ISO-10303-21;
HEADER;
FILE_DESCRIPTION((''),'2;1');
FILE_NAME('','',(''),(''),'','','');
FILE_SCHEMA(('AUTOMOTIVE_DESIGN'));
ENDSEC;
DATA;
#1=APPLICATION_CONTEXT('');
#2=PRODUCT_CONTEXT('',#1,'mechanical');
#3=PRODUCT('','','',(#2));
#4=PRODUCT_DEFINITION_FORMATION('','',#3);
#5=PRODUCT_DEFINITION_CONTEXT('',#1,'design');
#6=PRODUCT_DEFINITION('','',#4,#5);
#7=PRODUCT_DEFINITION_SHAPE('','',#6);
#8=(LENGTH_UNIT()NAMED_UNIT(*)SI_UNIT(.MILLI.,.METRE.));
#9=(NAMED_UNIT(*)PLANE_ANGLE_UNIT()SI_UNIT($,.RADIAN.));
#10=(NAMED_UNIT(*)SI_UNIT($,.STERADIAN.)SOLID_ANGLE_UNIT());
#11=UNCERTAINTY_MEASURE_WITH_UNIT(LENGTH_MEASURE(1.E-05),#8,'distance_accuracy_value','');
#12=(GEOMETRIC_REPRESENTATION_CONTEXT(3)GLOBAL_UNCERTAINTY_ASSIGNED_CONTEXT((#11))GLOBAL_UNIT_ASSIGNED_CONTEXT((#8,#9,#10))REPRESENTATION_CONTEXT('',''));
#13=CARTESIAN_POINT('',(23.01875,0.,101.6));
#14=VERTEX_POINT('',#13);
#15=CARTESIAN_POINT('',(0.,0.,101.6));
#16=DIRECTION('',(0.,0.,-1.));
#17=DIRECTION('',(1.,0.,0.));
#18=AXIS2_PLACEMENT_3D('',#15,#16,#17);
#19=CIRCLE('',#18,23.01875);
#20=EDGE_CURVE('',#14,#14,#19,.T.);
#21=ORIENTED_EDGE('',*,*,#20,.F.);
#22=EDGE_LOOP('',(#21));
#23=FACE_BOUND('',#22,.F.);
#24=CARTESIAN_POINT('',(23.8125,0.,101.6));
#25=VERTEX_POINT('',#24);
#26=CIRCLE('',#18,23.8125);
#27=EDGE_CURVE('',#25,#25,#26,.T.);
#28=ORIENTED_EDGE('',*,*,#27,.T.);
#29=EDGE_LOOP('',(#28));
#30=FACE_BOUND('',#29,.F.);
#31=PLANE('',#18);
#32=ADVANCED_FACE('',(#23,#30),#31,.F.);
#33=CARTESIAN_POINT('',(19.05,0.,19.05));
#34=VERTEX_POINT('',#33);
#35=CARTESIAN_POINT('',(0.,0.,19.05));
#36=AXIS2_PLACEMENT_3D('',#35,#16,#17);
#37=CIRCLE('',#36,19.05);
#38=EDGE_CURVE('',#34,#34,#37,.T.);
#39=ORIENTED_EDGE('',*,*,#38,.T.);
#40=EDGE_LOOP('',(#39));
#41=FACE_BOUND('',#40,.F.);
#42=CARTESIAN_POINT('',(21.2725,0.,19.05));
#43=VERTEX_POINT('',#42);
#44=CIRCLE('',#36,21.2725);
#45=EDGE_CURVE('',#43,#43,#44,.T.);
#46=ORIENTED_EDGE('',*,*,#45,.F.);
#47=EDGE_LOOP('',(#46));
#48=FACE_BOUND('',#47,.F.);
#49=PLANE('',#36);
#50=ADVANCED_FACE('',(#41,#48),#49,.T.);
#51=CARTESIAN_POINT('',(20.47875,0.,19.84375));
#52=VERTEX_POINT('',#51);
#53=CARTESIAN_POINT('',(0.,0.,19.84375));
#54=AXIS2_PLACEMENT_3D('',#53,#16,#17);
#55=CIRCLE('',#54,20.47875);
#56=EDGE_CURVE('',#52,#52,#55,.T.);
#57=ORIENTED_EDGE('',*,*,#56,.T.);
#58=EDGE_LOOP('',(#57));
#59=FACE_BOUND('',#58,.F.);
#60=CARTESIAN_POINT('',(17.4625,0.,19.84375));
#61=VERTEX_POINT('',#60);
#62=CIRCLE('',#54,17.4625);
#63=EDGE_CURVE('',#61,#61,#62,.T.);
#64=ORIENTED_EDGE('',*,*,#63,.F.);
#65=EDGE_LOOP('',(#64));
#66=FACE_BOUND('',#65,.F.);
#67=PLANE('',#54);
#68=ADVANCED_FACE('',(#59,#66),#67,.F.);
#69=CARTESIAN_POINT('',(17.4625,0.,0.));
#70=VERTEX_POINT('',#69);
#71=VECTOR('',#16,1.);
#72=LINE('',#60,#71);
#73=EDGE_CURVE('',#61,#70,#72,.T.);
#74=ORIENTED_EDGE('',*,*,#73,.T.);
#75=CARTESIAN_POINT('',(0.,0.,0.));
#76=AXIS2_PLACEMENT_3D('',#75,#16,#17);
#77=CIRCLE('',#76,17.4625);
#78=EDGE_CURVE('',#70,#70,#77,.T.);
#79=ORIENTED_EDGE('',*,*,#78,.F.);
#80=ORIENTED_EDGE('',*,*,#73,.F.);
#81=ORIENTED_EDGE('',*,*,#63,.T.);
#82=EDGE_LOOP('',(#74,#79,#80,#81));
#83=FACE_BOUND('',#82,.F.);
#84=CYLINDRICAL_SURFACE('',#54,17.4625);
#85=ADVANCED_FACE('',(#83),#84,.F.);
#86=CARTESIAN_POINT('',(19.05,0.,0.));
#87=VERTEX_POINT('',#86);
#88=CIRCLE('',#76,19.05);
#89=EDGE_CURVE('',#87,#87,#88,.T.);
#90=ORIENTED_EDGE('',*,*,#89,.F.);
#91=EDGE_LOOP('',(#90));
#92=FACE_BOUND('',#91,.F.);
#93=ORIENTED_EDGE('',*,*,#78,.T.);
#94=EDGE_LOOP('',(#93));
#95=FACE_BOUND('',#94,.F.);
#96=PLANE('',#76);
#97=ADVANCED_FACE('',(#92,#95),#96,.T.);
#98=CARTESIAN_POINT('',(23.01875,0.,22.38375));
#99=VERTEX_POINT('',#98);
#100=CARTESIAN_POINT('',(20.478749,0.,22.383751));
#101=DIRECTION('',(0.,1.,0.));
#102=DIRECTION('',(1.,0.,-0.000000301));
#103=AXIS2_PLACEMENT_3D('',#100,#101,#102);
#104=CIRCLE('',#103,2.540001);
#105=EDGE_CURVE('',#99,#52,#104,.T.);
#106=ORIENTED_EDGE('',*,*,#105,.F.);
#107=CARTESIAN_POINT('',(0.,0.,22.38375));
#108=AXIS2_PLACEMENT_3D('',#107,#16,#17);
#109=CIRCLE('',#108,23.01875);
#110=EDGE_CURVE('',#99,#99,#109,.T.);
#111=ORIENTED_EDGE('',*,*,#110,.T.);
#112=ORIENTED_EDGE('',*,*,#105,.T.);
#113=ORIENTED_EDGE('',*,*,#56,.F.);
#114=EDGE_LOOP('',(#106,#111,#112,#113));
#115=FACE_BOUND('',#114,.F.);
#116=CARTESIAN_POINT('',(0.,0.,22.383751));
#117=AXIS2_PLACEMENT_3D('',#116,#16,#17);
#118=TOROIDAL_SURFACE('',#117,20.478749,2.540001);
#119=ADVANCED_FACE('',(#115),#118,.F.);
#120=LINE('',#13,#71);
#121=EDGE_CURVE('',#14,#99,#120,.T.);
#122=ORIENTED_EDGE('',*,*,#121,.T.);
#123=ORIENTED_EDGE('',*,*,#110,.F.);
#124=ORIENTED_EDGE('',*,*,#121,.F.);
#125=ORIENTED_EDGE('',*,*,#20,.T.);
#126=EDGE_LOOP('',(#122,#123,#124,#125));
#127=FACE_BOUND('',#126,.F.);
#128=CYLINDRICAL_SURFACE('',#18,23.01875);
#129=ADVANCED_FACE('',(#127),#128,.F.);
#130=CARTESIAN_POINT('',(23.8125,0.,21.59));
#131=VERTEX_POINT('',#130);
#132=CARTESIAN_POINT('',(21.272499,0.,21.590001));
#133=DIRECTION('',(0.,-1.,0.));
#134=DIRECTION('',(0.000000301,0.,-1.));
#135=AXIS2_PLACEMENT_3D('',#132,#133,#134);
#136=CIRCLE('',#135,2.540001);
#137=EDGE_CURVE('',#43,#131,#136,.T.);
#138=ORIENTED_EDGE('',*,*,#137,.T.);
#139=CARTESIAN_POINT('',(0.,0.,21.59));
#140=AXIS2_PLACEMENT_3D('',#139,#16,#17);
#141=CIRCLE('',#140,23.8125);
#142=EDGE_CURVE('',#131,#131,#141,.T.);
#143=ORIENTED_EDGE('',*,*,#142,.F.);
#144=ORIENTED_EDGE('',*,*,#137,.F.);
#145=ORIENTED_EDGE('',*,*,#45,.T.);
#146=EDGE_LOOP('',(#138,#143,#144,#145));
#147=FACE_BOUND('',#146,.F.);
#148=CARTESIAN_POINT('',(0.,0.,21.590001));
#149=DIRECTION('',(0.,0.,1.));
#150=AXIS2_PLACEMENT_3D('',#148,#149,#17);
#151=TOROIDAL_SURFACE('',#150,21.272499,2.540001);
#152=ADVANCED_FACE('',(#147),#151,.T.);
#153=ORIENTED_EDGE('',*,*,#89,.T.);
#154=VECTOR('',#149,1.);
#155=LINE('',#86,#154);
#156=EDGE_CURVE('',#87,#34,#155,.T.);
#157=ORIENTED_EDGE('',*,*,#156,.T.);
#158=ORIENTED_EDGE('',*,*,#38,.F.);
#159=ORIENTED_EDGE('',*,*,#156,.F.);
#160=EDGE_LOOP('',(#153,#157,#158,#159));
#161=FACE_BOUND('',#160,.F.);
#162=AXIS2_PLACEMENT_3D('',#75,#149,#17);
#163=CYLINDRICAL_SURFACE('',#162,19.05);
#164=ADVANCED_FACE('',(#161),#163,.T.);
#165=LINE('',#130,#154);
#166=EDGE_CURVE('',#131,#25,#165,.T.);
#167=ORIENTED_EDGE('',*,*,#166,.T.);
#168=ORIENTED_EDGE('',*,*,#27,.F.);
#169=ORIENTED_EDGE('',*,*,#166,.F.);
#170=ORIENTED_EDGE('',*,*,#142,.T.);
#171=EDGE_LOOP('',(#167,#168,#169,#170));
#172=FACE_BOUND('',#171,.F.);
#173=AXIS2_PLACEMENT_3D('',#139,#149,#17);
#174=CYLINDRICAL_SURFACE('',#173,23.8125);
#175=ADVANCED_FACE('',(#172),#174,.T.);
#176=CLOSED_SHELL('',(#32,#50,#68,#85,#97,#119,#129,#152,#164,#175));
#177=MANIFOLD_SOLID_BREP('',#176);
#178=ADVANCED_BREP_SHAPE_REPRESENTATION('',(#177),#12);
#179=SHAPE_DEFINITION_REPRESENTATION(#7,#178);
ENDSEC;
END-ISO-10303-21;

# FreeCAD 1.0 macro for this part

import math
import FreeCAD as App
import Part
import Sketcher

V = App.Vector
Q = App.Units.Quantity

doc = App.newDocument("Part")
params = doc.addObject("Spreadsheet::Sheet", "Params")
for row, (alias, value) in enumerate([
    ("sketch1_radius", "0.1 in"),
    ("sketch1_height", "0.75 in"),
    ("sketch1_width", "0.0625 in"),
    ("sketch1_width2", "0.03125 in"),
    ("sketch1_height2", "0.78125 in"),
    ("revolution_angle", "360 deg"),
], start=1):
    params.set(f"A{row}", alias)
    params.set(f"B{row}", "=" + value)
    params.setAlias(f"B{row}", alias)

body = doc.addObject("PartDesign::Body", "Body")

# Sketch on XZ plane
sketch1 = body.newObject("Sketcher::SketchObject", "Sketch")
sketch1.AttachmentSupport = (doc.getObject("XZ_Plane"), [""])
sketch1.MapMode = "FlatFace"
sketch1.addGeometry(Part.LineSegment(V(17.5, 0, 0), V(19.1, 0, 0)), False)
sketch1.addGeometry(Part.LineSegment(V(19.1, 0, 0), V(19.1, 19.1, 0)), False)
sketch1.addGeometry(Part.LineSegment(V(19.1, 19.1, 0), V(21.3, 19.1, 0)), False)
sketch1.addGeometry(Part.ArcOfCircle(Part.Circle(V(21.3, 21.6, 0), V(0, 0, 1), 2.5), math.radians(-90), math.radians(0)), False)
sketch1.addGeometry(Part.LineSegment(V(23.8, 21.6, 0), V(23.8, 101.6, 0)), False)
sketch1.addGeometry(Part.LineSegment(V(23.8, 101.6, 0), V(23, 101.6, 0)), False)
sketch1.addGeometry(Part.LineSegment(V(23, 101.6, 0), V(23, 22.4, 0)), False)
sketch1.addGeometry(Part.ArcOfCircle(Part.Circle(V(20.5, 22.4, 0), V(0, 0, 1), 2.5), math.radians(-90), math.radians(0)), False)
sketch1.addGeometry(Part.LineSegment(V(20.5, 19.8, 0), V(17.5, 19.8, 0)), False)
sketch1.addGeometry(Part.LineSegment(V(17.5, 19.8, 0), V(17.5, 0, 0)), False)
sketch1.addConstraint(Sketcher.Constraint("Coincident", 0, 2, 1, 1))
sketch1.addConstraint(Sketcher.Constraint("Coincident", 1, 2, 2, 1))
sketch1.addConstraint(Sketcher.Constraint("Tangent", 2, 2, 3, 1))
sketch1.addConstraint(Sketcher.Constraint("Tangent", 3, 2, 4, 1))
sketch1.addConstraint(Sketcher.Constraint("Coincident", 4, 2, 5, 1))
sketch1.addConstraint(Sketcher.Constraint("Coincident", 5, 2, 6, 1))
sketch1.addConstraint(Sketcher.Constraint("Tangent", 6, 2, 7, 2))
sketch1.addConstraint(Sketcher.Constraint("Tangent", 7, 1, 8, 1))
sketch1.addConstraint(Sketcher.Constraint("Coincident", 8, 2, 9, 1))
sketch1.addConstraint(Sketcher.Constraint("Coincident", 9, 2, 0, 1))
sketch1.addConstraint(Sketcher.Constraint("Horizontal", 0))
sketch1.addConstraint(Sketcher.Constraint("Vertical", 1))
sketch1.addConstraint(Sketcher.Constraint("Horizontal", 2))
sketch1.addConstraint(Sketcher.Constraint("Vertical", 4))
sketch1.addConstraint(Sketcher.Constraint("Horizontal", 5))
sketch1.addConstraint(Sketcher.Constraint("Vertical", 6))
sketch1.addConstraint(Sketcher.Constraint("Horizontal", 8))
sketch1.addConstraint(Sketcher.Constraint("Vertical", 9))
sketch1.addConstraint(Sketcher.Constraint("Equal", 3, 7))
sketch1.addConstraint(Sketcher.Constraint("PointOnObject", 0, 2, -1))
sketch1.addConstraint(Sketcher.Constraint("Radius", 3, Q("0.1 in")))
sketch1.addConstraint(Sketcher.Constraint("DistanceY", -1, 1, 4, 2, Q("4 in")))
sketch1.addConstraint(Sketcher.Constraint("DistanceY", 1, 1, 1, 2, Q("0.75 in")))
sketch1.addConstraint(Sketcher.Constraint("DistanceX", 0, 1, 0, 2, Q("0.0625 in")))
sketch1.addConstraint(Sketcher.Constraint("DistanceX", 5, 2, 5, 1, Q("0.03125 in")))
sketch1.addConstraint(Sketcher.Constraint("DistanceY", 9, 2, 9, 1, Q("0.78125 in")))
sketch1.addConstraint(Sketcher.Constraint("DistanceX", -1, 1, 0, 2, Q("0.75 in")))
sketch1.addConstraint(Sketcher.Constraint("DistanceX", 8, 2, 2, 2, Q("0.15 in")))
sketch1.setExpression("Constraints[20]", "Params.sketch1_radius")
sketch1.setExpression("Constraints[22]", "Params.sketch1_height")
sketch1.setExpression("Constraints[23]", "Params.sketch1_width")
sketch1.setExpression("Constraints[24]", "Params.sketch1_width2")
sketch1.setExpression("Constraints[25]", "Params.sketch1_height2")
revolution = body.newObject("PartDesign::Revolution", "Revolution")
revolution.Profile = sketch1
revolution.ReferenceAxis = (sketch1, ["V_Axis"])
revolution.setExpression("Angle", "Params.revolution_angle")

doc.recompute()
